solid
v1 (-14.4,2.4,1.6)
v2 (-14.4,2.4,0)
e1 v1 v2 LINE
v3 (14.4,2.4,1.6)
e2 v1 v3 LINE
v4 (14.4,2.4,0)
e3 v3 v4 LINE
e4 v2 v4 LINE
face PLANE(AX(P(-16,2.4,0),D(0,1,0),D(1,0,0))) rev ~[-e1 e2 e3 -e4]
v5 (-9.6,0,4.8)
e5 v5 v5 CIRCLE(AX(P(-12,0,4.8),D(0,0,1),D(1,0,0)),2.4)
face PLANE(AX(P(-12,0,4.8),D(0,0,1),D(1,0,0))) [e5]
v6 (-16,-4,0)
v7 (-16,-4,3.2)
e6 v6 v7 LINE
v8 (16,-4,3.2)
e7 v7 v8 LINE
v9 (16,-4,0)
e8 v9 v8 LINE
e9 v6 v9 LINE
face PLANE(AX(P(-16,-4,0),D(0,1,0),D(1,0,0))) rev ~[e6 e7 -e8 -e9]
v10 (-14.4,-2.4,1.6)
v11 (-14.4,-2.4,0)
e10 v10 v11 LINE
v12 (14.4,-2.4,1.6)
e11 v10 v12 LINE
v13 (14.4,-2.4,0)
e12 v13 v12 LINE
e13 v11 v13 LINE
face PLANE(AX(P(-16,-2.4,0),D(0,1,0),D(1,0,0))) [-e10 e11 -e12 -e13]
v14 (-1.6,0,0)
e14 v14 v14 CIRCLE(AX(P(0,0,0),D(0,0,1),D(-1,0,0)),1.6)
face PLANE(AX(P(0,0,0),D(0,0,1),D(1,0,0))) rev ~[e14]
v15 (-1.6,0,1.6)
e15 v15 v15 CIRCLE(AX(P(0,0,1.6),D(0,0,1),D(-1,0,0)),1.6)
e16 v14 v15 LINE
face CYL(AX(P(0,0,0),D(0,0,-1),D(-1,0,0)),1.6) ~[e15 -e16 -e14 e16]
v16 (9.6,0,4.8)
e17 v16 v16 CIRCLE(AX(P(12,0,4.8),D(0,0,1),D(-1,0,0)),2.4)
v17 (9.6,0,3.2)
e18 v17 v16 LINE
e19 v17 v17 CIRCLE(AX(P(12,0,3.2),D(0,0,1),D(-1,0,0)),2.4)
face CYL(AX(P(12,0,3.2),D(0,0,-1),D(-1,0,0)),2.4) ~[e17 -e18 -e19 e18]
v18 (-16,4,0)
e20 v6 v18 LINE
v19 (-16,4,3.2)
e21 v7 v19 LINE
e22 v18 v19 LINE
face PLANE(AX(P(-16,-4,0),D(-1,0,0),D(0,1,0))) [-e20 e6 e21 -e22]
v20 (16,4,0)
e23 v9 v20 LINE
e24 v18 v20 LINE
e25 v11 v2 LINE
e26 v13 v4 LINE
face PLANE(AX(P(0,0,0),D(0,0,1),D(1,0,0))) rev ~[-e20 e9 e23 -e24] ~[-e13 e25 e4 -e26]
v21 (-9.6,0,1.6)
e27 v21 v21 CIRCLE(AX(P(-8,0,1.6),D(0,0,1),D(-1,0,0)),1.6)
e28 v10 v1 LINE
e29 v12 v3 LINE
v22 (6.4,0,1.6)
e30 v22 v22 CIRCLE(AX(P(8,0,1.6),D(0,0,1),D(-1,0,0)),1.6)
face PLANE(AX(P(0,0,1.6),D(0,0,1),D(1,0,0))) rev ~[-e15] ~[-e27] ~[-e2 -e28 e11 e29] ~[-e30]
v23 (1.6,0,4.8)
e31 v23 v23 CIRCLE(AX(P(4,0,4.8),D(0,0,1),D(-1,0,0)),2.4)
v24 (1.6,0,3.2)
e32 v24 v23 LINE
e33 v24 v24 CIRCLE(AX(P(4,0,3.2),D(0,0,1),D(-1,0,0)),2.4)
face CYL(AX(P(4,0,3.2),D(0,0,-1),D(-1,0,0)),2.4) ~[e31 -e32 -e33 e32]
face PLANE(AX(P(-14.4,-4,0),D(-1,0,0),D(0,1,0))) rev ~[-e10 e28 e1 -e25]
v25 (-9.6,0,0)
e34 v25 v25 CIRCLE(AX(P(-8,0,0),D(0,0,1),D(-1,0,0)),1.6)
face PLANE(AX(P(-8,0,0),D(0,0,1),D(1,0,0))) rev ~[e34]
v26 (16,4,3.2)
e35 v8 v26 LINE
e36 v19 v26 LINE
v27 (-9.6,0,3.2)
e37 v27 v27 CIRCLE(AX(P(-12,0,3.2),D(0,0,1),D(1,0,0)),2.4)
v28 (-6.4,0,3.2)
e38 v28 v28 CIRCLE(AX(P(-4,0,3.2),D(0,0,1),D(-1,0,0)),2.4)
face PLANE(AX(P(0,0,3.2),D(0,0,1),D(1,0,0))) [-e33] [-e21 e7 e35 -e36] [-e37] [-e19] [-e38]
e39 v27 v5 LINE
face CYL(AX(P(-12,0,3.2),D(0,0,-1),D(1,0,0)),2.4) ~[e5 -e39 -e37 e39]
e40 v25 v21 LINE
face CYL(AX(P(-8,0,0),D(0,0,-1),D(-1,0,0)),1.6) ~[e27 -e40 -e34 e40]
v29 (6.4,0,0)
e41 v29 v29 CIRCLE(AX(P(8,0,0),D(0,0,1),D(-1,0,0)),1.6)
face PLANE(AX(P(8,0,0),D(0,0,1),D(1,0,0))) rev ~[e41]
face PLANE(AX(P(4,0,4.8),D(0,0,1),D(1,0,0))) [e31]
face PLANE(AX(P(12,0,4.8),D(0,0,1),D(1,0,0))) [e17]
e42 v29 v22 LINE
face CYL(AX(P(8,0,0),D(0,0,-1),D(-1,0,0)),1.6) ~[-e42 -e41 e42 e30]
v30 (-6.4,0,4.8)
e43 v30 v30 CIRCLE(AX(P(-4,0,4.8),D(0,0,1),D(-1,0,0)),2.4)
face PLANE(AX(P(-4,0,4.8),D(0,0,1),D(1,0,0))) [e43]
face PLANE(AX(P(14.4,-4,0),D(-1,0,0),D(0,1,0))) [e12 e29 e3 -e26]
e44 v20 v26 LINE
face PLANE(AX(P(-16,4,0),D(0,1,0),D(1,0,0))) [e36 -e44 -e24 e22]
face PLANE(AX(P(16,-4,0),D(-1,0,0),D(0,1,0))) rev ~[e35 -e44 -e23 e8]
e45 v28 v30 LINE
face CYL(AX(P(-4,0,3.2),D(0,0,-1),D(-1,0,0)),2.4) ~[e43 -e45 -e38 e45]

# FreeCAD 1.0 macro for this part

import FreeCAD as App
import Part
import Sketcher

V = App.Vector
Q = App.Units.Quantity


def faces_at(feature, points):
    """Names of the faces that lie closest to the given points."""
    faces = feature.Shape.Faces
    near = lambda p: min(range(len(faces)), key=lambda i: faces[i].distToShape(Part.Vertex(*p))[0])
    return sorted({f"Face{near(p) + 1}" for p in points})


def add_polygon(sketch, points):
    """Adds a closed chain of lines whose ends are joined by coincident constraints."""
    first, n = sketch.GeometryCount, len(points)
    for a, b in zip(points, points[1:] + points[:1]):
        sketch.addGeometry(Part.LineSegment(App.Vector(*a, 0), App.Vector(*b, 0)), False)
    for i in range(n):
        sketch.addConstraint(Sketcher.Constraint("Coincident", first + i, 2, first + (i + 1) % n, 1))

doc = App.newDocument("Part")
params = doc.addObject("Spreadsheet::Sheet", "Params")
for row, (alias, value) in enumerate([
    ("sketch1_width", "32 mm"),
    ("sketch1_height", "8 mm"),
    ("pad1_length", "3.2 mm"),
    ("thickness_wall", "1.6 mm"),
    ("sketch2_diameter", "3.2 mm"),
    ("sketch3_diameter", "4.8 mm"),
    ("pad3_length", "1.6 mm"),
], start=1):
    params.set(f"A{row}", alias)
    params.set(f"B{row}", "=" + value)
    params.setAlias(f"B{row}", alias)

body = doc.addObject("PartDesign::Body", "Body")

# Sketch on XY plane
sketch1 = body.newObject("Sketcher::SketchObject", "Sketch")
sketch1.AttachmentSupport = (doc.getObject("XY_Plane"), [""])
sketch1.MapMode = "FlatFace"
add_polygon(sketch1, [(-16, 4), (-16, -4), (16, -4), (16, 4)])  # lines 0-3
sketch1.addConstraint(Sketcher.Constraint("Vertical", 0))
sketch1.addConstraint(Sketcher.Constraint("Horizontal", 1))
sketch1.addConstraint(Sketcher.Constraint("Vertical", 2))
sketch1.addConstraint(Sketcher.Constraint("Horizontal", 3))
sketch1.addConstraint(Sketcher.Constraint("Symmetric", 0, 2, 2, 2, -1, 1))
sketch1.addConstraint(Sketcher.Constraint("DistanceX", 1, 1, 1, 2, Q("32 mm")))
sketch1.addConstraint(Sketcher.Constraint("DistanceY", 0, 2, 0, 1, Q("8 mm")))
sketch1.setExpression("Constraints[9]", "Params.sketch1_width")
sketch1.setExpression("Constraints[10]", "Params.sketch1_height")
pad1 = body.newObject("PartDesign::Pad", "Pad")
pad1.Profile = sketch1
pad1.setExpression("Length", "Params.pad1_length")
doc.recompute()

thickness = body.newObject("PartDesign::Thickness", "Thickness")
thickness.Base = (pad1, faces_at(pad1, [(0, 0, 0)]))
thickness.setExpression("Value", "Params.thickness_wall")
thickness.Reversed = True
thickness.Join = "Arc"

# Sketch on XY plane
sketch2 = body.newObject("Sketcher::SketchObject", "Sketch001")
sketch2.AttachmentSupport = (doc.getObject("XY_Plane"), [""])
sketch2.MapMode = "FlatFace"
sketch2.addGeometry(Part.Circle(V(-8, 0, 0), V(0, 0, 1), 1.6), False)
sketch2.addGeometry(Part.Circle(V(0, 0, 0), V(0, 0, 1), 1.6), False)
sketch2.addGeometry(Part.Circle(V(8, 0, 0), V(0, 0, 1), 1.6), False)
sketch2.addConstraint(Sketcher.Constraint("Coincident", 1, 3, -1, 1))
sketch2.addConstraint(Sketcher.Constraint("Equal", 0, 1))
sketch2.addConstraint(Sketcher.Constraint("Equal", 1, 2))
sketch2.addConstraint(Sketcher.Constraint("Symmetric", 0, 3, 2, 3, -1, 1))
sketch2.addConstraint(Sketcher.Constraint("PointOnObject", 0, 3, -1))
sketch2.addConstraint(Sketcher.Constraint("Diameter", 0, Q("3.2 mm")))
sketch2.addConstraint(Sketcher.Constraint("DistanceX", 0, 3, -1, 1, Q("8 mm")))
sketch2.setExpression("Constraints[5]", "Params.sketch2_diameter")
pad2 = body.newObject("PartDesign::Pad", "Pad001")
pad2.Profile = sketch2
pad2.Type = "UpToLast"

# Sketch on XY plane
sketch3 = body.newObject("Sketcher::SketchObject", "Sketch002")
sketch3.AttachmentSupport = (doc.getObject("XY_Plane"), [""])
sketch3.MapMode = "FlatFace"
sketch3.AttachmentOffset = App.Placement(V(0, 0, 3.2), App.Rotation())
sketch3.addGeometry(Part.Circle(V(-12, 0, 0), V(0, 0, 1), 2.4), False)
sketch3.addGeometry(Part.Circle(V(-4, 0, 0), V(0, 0, 1), 2.4), False)
sketch3.addGeometry(Part.Circle(V(4, 0, 0), V(0, 0, 1), 2.4), False)
sketch3.addGeometry(Part.Circle(V(12, 0, 0), V(0, 0, 1), 2.4), False)
sketch3.addConstraint(Sketcher.Constraint("Equal", 0, 1))
sketch3.addConstraint(Sketcher.Constraint("Equal", 1, 2))
sketch3.addConstraint(Sketcher.Constraint("Equal", 2, 3))
sketch3.addConstraint(Sketcher.Constraint("Symmetric", 1, 3, 2, 3, -1, 1))
sketch3.addConstraint(Sketcher.Constraint("Symmetric", 0, 3, 3, 3, -1, 1))
sketch3.addConstraint(Sketcher.Constraint("PointOnObject", 0, 3, -1))
sketch3.addConstraint(Sketcher.Constraint("PointOnObject", 1, 3, -1))
sketch3.addConstraint(Sketcher.Constraint("Diameter", 0, Q("4.8 mm")))
sketch3.addConstraint(Sketcher.Constraint("DistanceX", 0, 3, -1, 1, Q("12 mm")))
sketch3.addConstraint(Sketcher.Constraint("DistanceX", 1, 3, -1, 1, Q("4 mm")))
sketch3.setExpression("Constraints[7]", "Params.sketch3_diameter")
pad3 = body.newObject("PartDesign::Pad", "Pad002")
pad3.Profile = sketch3
pad3.setExpression("Length", "Params.pad3_length")

doc.recompute()
